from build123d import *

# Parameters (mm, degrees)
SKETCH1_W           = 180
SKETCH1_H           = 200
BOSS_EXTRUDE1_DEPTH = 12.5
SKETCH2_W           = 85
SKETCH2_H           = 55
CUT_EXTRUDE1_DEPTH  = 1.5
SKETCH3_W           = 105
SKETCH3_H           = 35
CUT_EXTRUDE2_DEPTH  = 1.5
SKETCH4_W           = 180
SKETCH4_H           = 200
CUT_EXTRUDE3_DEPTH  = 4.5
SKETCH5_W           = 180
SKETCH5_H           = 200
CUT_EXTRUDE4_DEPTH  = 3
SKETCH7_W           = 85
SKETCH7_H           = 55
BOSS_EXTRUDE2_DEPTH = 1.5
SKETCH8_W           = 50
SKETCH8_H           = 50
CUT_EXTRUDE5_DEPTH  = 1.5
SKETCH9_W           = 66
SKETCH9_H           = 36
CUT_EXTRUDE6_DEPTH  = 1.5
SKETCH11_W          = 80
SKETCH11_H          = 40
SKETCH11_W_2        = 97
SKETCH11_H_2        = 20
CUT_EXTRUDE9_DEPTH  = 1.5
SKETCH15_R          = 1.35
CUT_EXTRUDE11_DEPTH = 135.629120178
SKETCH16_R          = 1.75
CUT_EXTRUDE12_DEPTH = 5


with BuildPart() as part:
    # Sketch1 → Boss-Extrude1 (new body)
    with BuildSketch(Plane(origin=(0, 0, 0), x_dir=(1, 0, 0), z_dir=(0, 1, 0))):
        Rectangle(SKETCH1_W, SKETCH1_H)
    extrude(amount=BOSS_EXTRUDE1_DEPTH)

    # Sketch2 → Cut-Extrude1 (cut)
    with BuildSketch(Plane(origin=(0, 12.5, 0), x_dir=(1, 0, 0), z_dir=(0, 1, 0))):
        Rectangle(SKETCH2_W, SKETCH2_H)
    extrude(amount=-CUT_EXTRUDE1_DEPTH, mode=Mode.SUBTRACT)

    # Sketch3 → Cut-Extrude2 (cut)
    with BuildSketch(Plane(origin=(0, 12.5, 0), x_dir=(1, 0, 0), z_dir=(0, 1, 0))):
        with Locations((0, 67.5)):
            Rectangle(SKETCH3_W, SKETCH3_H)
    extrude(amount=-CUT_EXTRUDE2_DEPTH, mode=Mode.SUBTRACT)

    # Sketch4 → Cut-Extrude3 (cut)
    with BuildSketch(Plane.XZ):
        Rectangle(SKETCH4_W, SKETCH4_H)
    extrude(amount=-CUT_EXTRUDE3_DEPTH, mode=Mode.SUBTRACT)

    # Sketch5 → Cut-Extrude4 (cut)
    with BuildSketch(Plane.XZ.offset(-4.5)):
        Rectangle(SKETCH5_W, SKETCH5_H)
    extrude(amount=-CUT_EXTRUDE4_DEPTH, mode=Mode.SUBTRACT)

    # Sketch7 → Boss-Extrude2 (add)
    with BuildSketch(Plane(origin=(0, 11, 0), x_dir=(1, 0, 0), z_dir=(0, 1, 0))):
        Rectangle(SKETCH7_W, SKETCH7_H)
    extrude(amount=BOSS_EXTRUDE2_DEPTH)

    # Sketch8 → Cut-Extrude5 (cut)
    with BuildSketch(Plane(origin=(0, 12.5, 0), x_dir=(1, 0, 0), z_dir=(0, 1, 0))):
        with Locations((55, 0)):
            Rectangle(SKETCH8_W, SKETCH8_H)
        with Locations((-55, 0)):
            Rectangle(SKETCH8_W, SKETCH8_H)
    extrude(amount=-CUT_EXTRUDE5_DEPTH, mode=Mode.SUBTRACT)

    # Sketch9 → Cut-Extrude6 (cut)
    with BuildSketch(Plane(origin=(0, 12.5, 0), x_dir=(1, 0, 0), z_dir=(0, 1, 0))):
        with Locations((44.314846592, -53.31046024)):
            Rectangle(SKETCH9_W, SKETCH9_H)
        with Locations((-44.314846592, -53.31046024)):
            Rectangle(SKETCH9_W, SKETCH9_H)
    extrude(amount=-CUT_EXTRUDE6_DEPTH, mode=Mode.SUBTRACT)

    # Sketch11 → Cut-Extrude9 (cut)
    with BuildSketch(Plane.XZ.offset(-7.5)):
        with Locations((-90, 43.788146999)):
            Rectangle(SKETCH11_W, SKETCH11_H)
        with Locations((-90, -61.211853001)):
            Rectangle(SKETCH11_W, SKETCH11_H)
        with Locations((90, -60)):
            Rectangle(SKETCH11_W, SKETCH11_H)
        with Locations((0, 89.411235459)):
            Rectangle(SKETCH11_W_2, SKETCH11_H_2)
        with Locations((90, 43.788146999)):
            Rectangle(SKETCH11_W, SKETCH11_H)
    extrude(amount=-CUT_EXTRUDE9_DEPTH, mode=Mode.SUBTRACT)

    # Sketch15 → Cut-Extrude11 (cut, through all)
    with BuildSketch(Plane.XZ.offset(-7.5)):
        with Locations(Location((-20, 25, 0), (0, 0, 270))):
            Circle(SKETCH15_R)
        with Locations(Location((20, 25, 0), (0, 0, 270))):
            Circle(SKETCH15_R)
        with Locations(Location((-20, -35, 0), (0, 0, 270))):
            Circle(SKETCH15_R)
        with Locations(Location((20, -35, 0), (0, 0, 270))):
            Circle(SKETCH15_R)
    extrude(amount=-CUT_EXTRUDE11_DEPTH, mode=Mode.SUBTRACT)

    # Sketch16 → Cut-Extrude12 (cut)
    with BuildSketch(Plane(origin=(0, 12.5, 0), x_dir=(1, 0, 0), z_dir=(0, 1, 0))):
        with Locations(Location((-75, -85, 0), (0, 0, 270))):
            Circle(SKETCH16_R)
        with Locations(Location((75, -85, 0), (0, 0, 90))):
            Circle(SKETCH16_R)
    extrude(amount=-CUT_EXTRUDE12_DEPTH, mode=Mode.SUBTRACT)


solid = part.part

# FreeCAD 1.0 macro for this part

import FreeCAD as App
import Part
import Sketcher

V = App.Vector
Q = App.Units.Quantity

doc = App.newDocument("Part")
body = doc.addObject("PartDesign::Body", "Body")

# Sketch on XZ plane
sketch1 = body.newObject("Sketcher::SketchObject", "Sketch")
sketch1.AttachmentSupport = (doc.getObject("XZ_Plane"), [""])
sketch1.MapMode = "FlatFace"
sketch1.addGeometry(Part.LineSegment(V(-90, -100, 0), V(-90, 100, 0)), False)
sketch1.addGeometry(Part.LineSegment(V(-90, 100, 0), V(90, 100, 0)), False)
sketch1.addGeometry(Part.LineSegment(V(90, 100, 0), V(90, -100, 0)), False)
sketch1.addGeometry(Part.LineSegment(V(90, -100, 0), V(-90, -100, 0)), False)
sketch1.addConstraint(Sketcher.Constraint("Coincident", 0, 2, 1, 1))
sketch1.addConstraint(Sketcher.Constraint("Coincident", 1, 2, 2, 1))
sketch1.addConstraint(Sketcher.Constraint("Coincident", 2, 2, 3, 1))
sketch1.addConstraint(Sketcher.Constraint("Coincident", 3, 2, 0, 1))
sketch1.addConstraint(Sketcher.Constraint("Vertical", 0))
sketch1.addConstraint(Sketcher.Constraint("Horizontal", 1))
sketch1.addConstraint(Sketcher.Constraint("Vertical", 2))
sketch1.addConstraint(Sketcher.Constraint("Horizontal", 3))
sketch1.addConstraint(Sketcher.Constraint("Symmetric", 0, 2, 2, 2, -1, 1))
sketch1.addConstraint(Sketcher.Constraint("DistanceX", 1, 1, 1, 2, Q("180 mm")))
sketch1.addConstraint(Sketcher.Constraint("DistanceY", 0, 1, 0, 2, Q("200 mm")))
pad1 = body.newObject("PartDesign::Pad", "Pad")
pad1.Profile = sketch1
pad1.Length = 12.5
pad1.Reversed = True

# Sketch on XZ plane
sketch2 = body.newObject("Sketcher::SketchObject", "Sketch001")
sketch2.AttachmentSupport = (doc.getObject("XZ_Plane"), [""])
sketch2.MapMode = "FlatFace"
sketch2.AttachmentOffset = App.Placement(V(0, 0, -12.5), App.Rotation())
sketch2.addGeometry(Part.LineSegment(V(-42, -28, 0), V(-42, 28, 0)), False)
sketch2.addGeometry(Part.LineSegment(V(-42, 28, 0), V(42, 28, 0)), False)
sketch2.addGeometry(Part.LineSegment(V(42, 28, 0), V(42, -28, 0)), False)
sketch2.addGeometry(Part.LineSegment(V(42, -28, 0), V(-42, -28, 0)), False)
sketch2.addConstraint(Sketcher.Constraint("Coincident", 0, 2, 1, 1))
sketch2.addConstraint(Sketcher.Constraint("Coincident", 1, 2, 2, 1))
sketch2.addConstraint(Sketcher.Constraint("Coincident", 2, 2, 3, 1))
sketch2.addConstraint(Sketcher.Constraint("Coincident", 3, 2, 0, 1))
sketch2.addConstraint(Sketcher.Constraint("Vertical", 0))
sketch2.addConstraint(Sketcher.Constraint("Horizontal", 1))
sketch2.addConstraint(Sketcher.Constraint("Vertical", 2))
sketch2.addConstraint(Sketcher.Constraint("Horizontal", 3))
sketch2.addConstraint(Sketcher.Constraint("Symmetric", 0, 2, 2, 2, -1, 1))
sketch2.addConstraint(Sketcher.Constraint("DistanceX", 1, 1, 1, 2, Q("85 mm")))
sketch2.addConstraint(Sketcher.Constraint("DistanceY", 0, 1, 0, 2, Q("55 mm")))
pocket1 = body.newObject("PartDesign::Pocket", "Pocket")
pocket1.Profile = sketch2
pocket1.Length = 1.5
pocket1.Reversed = True

# Sketch on XZ plane
sketch3 = body.newObject("Sketcher::SketchObject", "Sketch002")
sketch3.AttachmentSupport = (doc.getObject("XZ_Plane"), [""])
sketch3.MapMode = "FlatFace"
sketch3.AttachmentOffset = App.Placement(V(0, 0, -12.5), App.Rotation())
sketch3.addGeometry(Part.LineSegment(V(-52, -85, 0), V(-52, -50, 0)), False)
sketch3.addGeometry(Part.LineSegment(V(-52, -50, 0), V(52, -50, 0)), False)
sketch3.addGeometry(Part.LineSegment(V(52, -50, 0), V(52, -85, 0)), False)
sketch3.addGeometry(Part.LineSegment(V(52, -85, 0), V(-52, -85, 0)), False)
sketch3.addConstraint(Sketcher.Constraint("Coincident", 0, 2, 1, 1))
sketch3.addConstraint(Sketcher.Constraint("Coincident", 1, 2, 2, 1))
sketch3.addConstraint(Sketcher.Constraint("Coincident", 2, 2, 3, 1))
sketch3.addConstraint(Sketcher.Constraint("Coincident", 3, 2, 0, 1))
sketch3.addConstraint(Sketcher.Constraint("Vertical", 0))
sketch3.addConstraint(Sketcher.Constraint("Horizontal", 1))
sketch3.addConstraint(Sketcher.Constraint("Vertical", 2))
sketch3.addConstraint(Sketcher.Constraint("Horizontal", 3))
sketch3.addConstraint(Sketcher.Constraint("DistanceX", 1, 1, 1, 2, Q("105 mm")))
sketch3.addConstraint(Sketcher.Constraint("DistanceY", 0, 1, 0, 2, Q("35 mm")))
sketch3.addConstraint(Sketcher.Constraint("DistanceY", 0, 2, -1, 1, Q("50 mm")))
sketch3.addConstraint(Sketcher.Constraint("DistanceX", 0, 2, -1, 1, Q("52.5 mm")))
pocket2 = body.newObject("PartDesign::Pocket", "Pocket001")
pocket2.Profile = sketch3
pocket2.Length = 1.5
pocket2.Reversed = True

# Sketch on XZ plane
sketch4 = body.newObject("Sketcher::SketchObject", "Sketch003")
sketch4.AttachmentSupport = (doc.getObject("XZ_Plane"), [""])
sketch4.MapMode = "FlatFace"
sketch4.addGeometry(Part.LineSegment(V(-90, 100, 0), V(-90, -100, 0)), False)
sketch4.addGeometry(Part.LineSegment(V(-90, -100, 0), V(90, -100, 0)), False)
sketch4.addGeometry(Part.LineSegment(V(90, -100, 0), V(90, 100, 0)), False)
sketch4.addGeometry(Part.LineSegment(V(90, 100, 0), V(-90, 100, 0)), False)
sketch4.addConstraint(Sketcher.Constraint("Coincident", 0, 2, 1, 1))
sketch4.addConstraint(Sketcher.Constraint("Coincident", 1, 2, 2, 1))
sketch4.addConstraint(Sketcher.Constraint("Coincident", 2, 2, 3, 1))
sketch4.addConstraint(Sketcher.Constraint("Coincident", 3, 2, 0, 1))
sketch4.addConstraint(Sketcher.Constraint("Vertical", 0))
sketch4.addConstraint(Sketcher.Constraint("Horizontal", 1))
sketch4.addConstraint(Sketcher.Constraint("Vertical", 2))
sketch4.addConstraint(Sketcher.Constraint("Horizontal", 3))
sketch4.addConstraint(Sketcher.Constraint("Symmetric", 0, 2, 2, 2, -1, 1))
sketch4.addConstraint(Sketcher.Constraint("DistanceX", 1, 1, 1, 2, Q("180 mm")))
sketch4.addConstraint(Sketcher.Constraint("DistanceY", 0, 2, 0, 1, Q("200 mm")))
pocket3 = body.newObject("PartDesign::Pocket", "Pocket002")
pocket3.Profile = sketch4
pocket3.Length = 4.5

# Sketch on XZ plane
sketch5 = body.newObject("Sketcher::SketchObject", "Sketch004")
sketch5.AttachmentSupport = (doc.getObject("XZ_Plane"), [""])
sketch5.MapMode = "FlatFace"
sketch5.AttachmentOffset = App.Placement(V(0, 0, -4.5), App.Rotation())
sketch5.addGeometry(Part.LineSegment(V(-90, 100, 0), V(-90, -100, 0)), False)
sketch5.addGeometry(Part.LineSegment(V(-90, -100, 0), V(90, -100, 0)), False)
sketch5.addGeometry(Part.LineSegment(V(90, -100, 0), V(90, 100, 0)), False)
sketch5.addGeometry(Part.LineSegment(V(90, 100, 0), V(-90, 100, 0)), False)
sketch5.addConstraint(Sketcher.Constraint("Coincident", 0, 2, 1, 1))
sketch5.addConstraint(Sketcher.Constraint("Coincident", 1, 2, 2, 1))
sketch5.addConstraint(Sketcher.Constraint("Coincident", 2, 2, 3, 1))
sketch5.addConstraint(Sketcher.Constraint("Coincident", 3, 2, 0, 1))
sketch5.addConstraint(Sketcher.Constraint("Vertical", 0))
sketch5.addConstraint(Sketcher.Constraint("Horizontal", 1))
sketch5.addConstraint(Sketcher.Constraint("Vertical", 2))
sketch5.addConstraint(Sketcher.Constraint("Horizontal", 3))
sketch5.addConstraint(Sketcher.Constraint("Symmetric", 0, 2, 2, 2, -1, 1))
sketch5.addConstraint(Sketcher.Constraint("DistanceX", 1, 1, 1, 2, Q("180 mm")))
sketch5.addConstraint(Sketcher.Constraint("DistanceY", 0, 2, 0, 1, Q("200 mm")))
pocket4 = body.newObject("PartDesign::Pocket", "Pocket003")
pocket4.Profile = sketch5
pocket4.Length = 3

# Sketch on XZ plane
sketch6 = body.newObject("Sketcher::SketchObject", "Sketch005")
sketch6.AttachmentSupport = (doc.getObject("XZ_Plane"), [""])
sketch6.MapMode = "FlatFace"
sketch6.AttachmentOffset = App.Placement(V(0, 0, -11), App.Rotation())
sketch6.addGeometry(Part.LineSegment(V(-42, -28, 0), V(-42, 28, 0)), False)
sketch6.addGeometry(Part.LineSegment(V(-42, 28, 0), V(42, 28, 0)), False)
sketch6.addGeometry(Part.LineSegment(V(42, 28, 0), V(42, -28, 0)), False)
sketch6.addGeometry(Part.LineSegment(V(42, -28, 0), V(-42, -28, 0)), False)
sketch6.addConstraint(Sketcher.Constraint("Coincident", 0, 2, 1, 1))
sketch6.addConstraint(Sketcher.Constraint("Coincident", 1, 2, 2, 1))
sketch6.addConstraint(Sketcher.Constraint("Coincident", 2, 2, 3, 1))
sketch6.addConstraint(Sketcher.Constraint("Coincident", 3, 2, 0, 1))
sketch6.addConstraint(Sketcher.Constraint("Vertical", 0))
sketch6.addConstraint(Sketcher.Constraint("Horizontal", 1))
sketch6.addConstraint(Sketcher.Constraint("Vertical", 2))
sketch6.addConstraint(Sketcher.Constraint("Horizontal", 3))
sketch6.addConstraint(Sketcher.Constraint("Symmetric", 0, 2, 2, 2, -1, 1))
sketch6.addConstraint(Sketcher.Constraint("DistanceX", 1, 1, 1, 2, Q("85 mm")))
sketch6.addConstraint(Sketcher.Constraint("DistanceY", 0, 1, 0, 2, Q("55 mm")))
pad2 = body.newObject("PartDesign::Pad", "Pad001")
pad2.Profile = sketch6
pad2.Length = 1.5
pad2.Reversed = True

# Sketch on XZ plane
sketch7 = body.newObject("Sketcher::SketchObject", "Sketch006")
sketch7.AttachmentSupport = (doc.getObject("XZ_Plane"), [""])
sketch7.MapMode = "FlatFace"
sketch7.AttachmentOffset = App.Placement(V(0, 0, -12.5), App.Rotation())
sketch7.addGeometry(Part.LineSegment(V(30, -25, 0), V(30, 25, 0)), False)
sketch7.addGeometry(Part.LineSegment(V(30, 25, 0), V(80, 25, 0)), False)
sketch7.addGeometry(Part.LineSegment(V(80, 25, 0), V(80, -25, 0)), False)
sketch7.addGeometry(Part.LineSegment(V(80, -25, 0), V(30, -25, 0)), False)
sketch7.addGeometry(Part.LineSegment(V(-80, -25, 0), V(-80, 25, 0)), False)
sketch7.addGeometry(Part.LineSegment(V(-80, 25, 0), V(-30, 25, 0)), False)
sketch7.addGeometry(Part.LineSegment(V(-30, 25, 0), V(-30, -25, 0)), False)
sketch7.addGeometry(Part.LineSegment(V(-30, -25, 0), V(-80, -25, 0)), False)
sketch7.addConstraint(Sketcher.Constraint("Coincident", 0, 2, 1, 1))
sketch7.addConstraint(Sketcher.Constraint("Coincident", 1, 2, 2, 1))
sketch7.addConstraint(Sketcher.Constraint("Coincident", 2, 2, 3, 1))
sketch7.addConstraint(Sketcher.Constraint("Coincident", 3, 2, 0, 1))
sketch7.addConstraint(Sketcher.Constraint("Coincident", 4, 2, 5, 1))
sketch7.addConstraint(Sketcher.Constraint("Coincident", 5, 2, 6, 1))
sketch7.addConstraint(Sketcher.Constraint("Coincident", 6, 2, 7, 1))
sketch7.addConstraint(Sketcher.Constraint("Coincident", 7, 2, 4, 1))
sketch7.addConstraint(Sketcher.Constraint("Vertical", 0))
sketch7.addConstraint(Sketcher.Constraint("Horizontal", 1))
sketch7.addConstraint(Sketcher.Constraint("Vertical", 2))
sketch7.addConstraint(Sketcher.Constraint("Horizontal", 3))
sketch7.addConstraint(Sketcher.Constraint("Vertical", 4))
sketch7.addConstraint(Sketcher.Constraint("Horizontal", 5))
sketch7.addConstraint(Sketcher.Constraint("Vertical", 6))
sketch7.addConstraint(Sketcher.Constraint("Horizontal", 7))
sketch7.addConstraint(Sketcher.Constraint("Symmetric", 2, 2, 4, 2, -1, 1))
sketch7.addConstraint(Sketcher.Constraint("Symmetric", 0, 2, 6, 2, -1, 1))
sketch7.addConstraint(Sketcher.Constraint("Horizontal", 1, 2, 4, 2))
sketch7.addConstraint(Sketcher.Constraint("Equal", 7, 0))
sketch7.addConstraint(Sketcher.Constraint("DistanceX", 1, 1, 1, 2, Q("50 mm")))
sketch7.addConstraint(Sketcher.Constraint("DistanceX", -1, 1, 0, 2, Q("30 mm")))
pocket5 = body.newObject("PartDesign::Pocket", "Pocket004")
pocket5.Profile = sketch7
pocket5.Length = 1.5
pocket5.Reversed = True

# Sketch on XZ plane
sketch8 = body.newObject("Sketcher::SketchObject", "Sketch007")
sketch8.AttachmentSupport = (doc.getObject("XZ_Plane"), [""])
sketch8.MapMode = "FlatFace"
sketch8.AttachmentOffset = App.Placement(V(0, 0, -12.5), App.Rotation())
sketch8.addGeometry(Part.LineSegment(V(11, 35, 0), V(11, 71, 0)), False)
sketch8.addGeometry(Part.LineSegment(V(11, 71, 0), V(77, 71, 0)), False)
sketch8.addGeometry(Part.LineSegment(V(77, 71, 0), V(77, 35, 0)), False)
sketch8.addGeometry(Part.LineSegment(V(77, 35, 0), V(11, 35, 0)), False)
sketch8.addGeometry(Part.LineSegment(V(-77, 35, 0), V(-77, 71, 0)), False)
sketch8.addGeometry(Part.LineSegment(V(-77, 71, 0), V(-11, 71, 0)), False)
sketch8.addGeometry(Part.LineSegment(V(-11, 71, 0), V(-11, 35, 0)), False)
sketch8.addGeometry(Part.LineSegment(V(-11, 35, 0), V(-77, 35, 0)), False)
sketch8.addConstraint(Sketcher.Constraint("Coincident", 0, 2, 1, 1))
sketch8.addConstraint(Sketcher.Constraint("Coincident", 1, 2, 2, 1))
sketch8.addConstraint(Sketcher.Constraint("Coincident", 2, 2, 3, 1))
sketch8.addConstraint(Sketcher.Constraint("Coincident", 3, 2, 0, 1))
sketch8.addConstraint(Sketcher.Constraint("Coincident", 4, 2, 5, 1))
sketch8.addConstraint(Sketcher.Constraint("Coincident", 5, 2, 6, 1))
sketch8.addConstraint(Sketcher.Constraint("Coincident", 6, 2, 7, 1))
sketch8.addConstraint(Sketcher.Constraint("Coincident", 7, 2, 4, 1))
sketch8.addConstraint(Sketcher.Constraint("Vertical", 0))
sketch8.addConstraint(Sketcher.Constraint("Horizontal", 1))
sketch8.addConstraint(Sketcher.Constraint("Vertical", 2))
sketch8.addConstraint(Sketcher.Constraint("Horizontal", 3))
sketch8.addConstraint(Sketcher.Constraint("Vertical", 4))
sketch8.addConstraint(Sketcher.Constraint("Horizontal", 5))
sketch8.addConstraint(Sketcher.Constraint("Vertical", 6))
sketch8.addConstraint(Sketcher.Constraint("Horizontal", 7))
sketch8.addConstraint(Sketcher.Constraint("Symmetric", 1, 2, 4, 2, -2))
sketch8.addConstraint(Sketcher.Constraint("Symmetric", 3, 2, 6, 2, -2))
sketch8.addConstraint(Sketcher.Constraint("DistanceX", 1, 1, 1, 2, Q("66 mm")))
sketch8.addConstraint(Sketcher.Constraint("DistanceY", 0, 1, 0, 2, Q("36 mm")))
sketch8.addConstraint(Sketcher.Constraint("DistanceY", -1, 1, 0, 2, Q("71.31046 mm")))
sketch8.addConstraint(Sketcher.Constraint("DistanceX", -1, 1, 0, 2, Q("11.314847 mm")))
pocket6 = body.newObject("PartDesign::Pocket", "Pocket005")
pocket6.Profile = sketch8
pocket6.Length = 1.5
pocket6.Reversed = True

# Sketch on XZ plane
sketch9 = body.newObject("Sketcher::SketchObject", "Sketch008")
sketch9.AttachmentSupport = (doc.getObject("XZ_Plane"), [""])
sketch9.MapMode = "FlatFace"
sketch9.AttachmentOffset = App.Placement(V(0, 0, -7.5), App.Rotation())
sketch9.addGeometry(Part.LineSegment(V(-130, 64, 0), V(-130, 24, 0)), False)
sketch9.addGeometry(Part.LineSegment(V(-130, 24, 0), V(-50, 24, 0)), False)
sketch9.addGeometry(Part.LineSegment(V(-50, 24, 0), V(-50, 64, 0)), False)
sketch9.addGeometry(Part.LineSegment(V(-50, 64, 0), V(-130, 64, 0)), False)
sketch9.addGeometry(Part.LineSegment(V(-130, -41, 0), V(-130, -81, 0)), False)
sketch9.addGeometry(Part.LineSegment(V(-130, -81, 0), V(-50, -81, 0)), False)
sketch9.addGeometry(Part.LineSegment(V(-50, -81, 0), V(-50, -41, 0)), False)
sketch9.addGeometry(Part.LineSegment(V(-50, -41, 0), V(-130, -41, 0)), False)
sketch9.addGeometry(Part.LineSegment(V(50, -40, 0), V(50, -80, 0)), False)
sketch9.addGeometry(Part.LineSegment(V(50, -80, 0), V(130, -80, 0)), False)
sketch9.addGeometry(Part.LineSegment(V(130, -80, 0), V(130, -40, 0)), False)
sketch9.addGeometry(Part.LineSegment(V(130, -40, 0), V(50, -40, 0)), False)
sketch9.addGeometry(Part.LineSegment(V(-48, 99, 0), V(-48, 79, 0)), False)
sketch9.addGeometry(Part.LineSegment(V(-48, 79, 0), V(48, 79, 0)), False)
sketch9.addGeometry(Part.LineSegment(V(48, 79, 0), V(48, 99, 0)), False)
sketch9.addGeometry(Part.LineSegment(V(48, 99, 0), V(-48, 99, 0)), False)
sketch9.addGeometry(Part.LineSegment(V(50, 64, 0), V(50, 24, 0)), False)
sketch9.addGeometry(Part.LineSegment(V(50, 24, 0), V(130, 24, 0)), False)
sketch9.addGeometry(Part.LineSegment(V(130, 24, 0), V(130, 64, 0)), False)
sketch9.addGeometry(Part.LineSegment(V(130, 64, 0), V(50, 64, 0)), False)
sketch9.addConstraint(Sketcher.Constraint("Coincident", 0, 2, 1, 1))
sketch9.addConstraint(Sketcher.Constraint("Coincident", 1, 2, 2, 1))
sketch9.addConstraint(Sketcher.Constraint("Coincident", 2, 2, 3, 1))
sketch9.addConstraint(Sketcher.Constraint("Coincident", 3, 2, 0, 1))
sketch9.addConstraint(Sketcher.Constraint("Coincident", 4, 2, 5, 1))
sketch9.addConstraint(Sketcher.Constraint("Coincident", 5, 2, 6, 1))
sketch9.addConstraint(Sketcher.Constraint("Coincident", 6, 2, 7, 1))
sketch9.addConstraint(Sketcher.Constraint("Coincident", 7, 2, 4, 1))
sketch9.addConstraint(Sketcher.Constraint("Coincident", 8, 2, 9, 1))
sketch9.addConstraint(Sketcher.Constraint("Coincident", 9, 2, 10, 1))
sketch9.addConstraint(Sketcher.Constraint("Coincident", 10, 2, 11, 1))
sketch9.addConstraint(Sketcher.Constraint("Coincident", 11, 2, 8, 1))
sketch9.addConstraint(Sketcher.Constraint("Coincident", 12, 2, 13, 1))
sketch9.addConstraint(Sketcher.Constraint("Coincident", 13, 2, 14, 1))
sketch9.addConstraint(Sketcher.Constraint("Coincident", 14, 2, 15, 1))
sketch9.addConstraint(Sketcher.Constraint("Coincident", 15, 2, 12, 1))
sketch9.addConstraint(Sketcher.Constraint("Coincident", 16, 2, 17, 1))
sketch9.addConstraint(Sketcher.Constraint("Coincident", 17, 2, 18, 1))
sketch9.addConstraint(Sketcher.Constraint("Coincident", 18, 2, 19, 1))
sketch9.addConstraint(Sketcher.Constraint("Coincident", 19, 2, 16, 1))
sketch9.addConstraint(Sketcher.Constraint("Vertical", 0))
sketch9.addConstraint(Sketcher.Constraint("Horizontal", 1))
sketch9.addConstraint(Sketcher.Constraint("Vertical", 2))
sketch9.addConstraint(Sketcher.Constraint("Horizontal", 3))
sketch9.addConstraint(Sketcher.Constraint("Vertical", 4))
sketch9.addConstraint(Sketcher.Constraint("Horizontal", 5))
sketch9.addConstraint(Sketcher.Constraint("Vertical", 6))
sketch9.addConstraint(Sketcher.Constraint("Horizontal", 7))
sketch9.addConstraint(Sketcher.Constraint("Vertical", 8))
sketch9.addConstraint(Sketcher.Constraint("Horizontal", 9))
sketch9.addConstraint(Sketcher.Constraint("Vertical", 10))
sketch9.addConstraint(Sketcher.Constraint("Horizontal", 11))
sketch9.addConstraint(Sketcher.Constraint("Vertical", 12))
sketch9.addConstraint(Sketcher.Constraint("Horizontal", 13))
sketch9.addConstraint(Sketcher.Constraint("Vertical", 14))
sketch9.addConstraint(Sketcher.Constraint("Horizontal", 15))
sketch9.addConstraint(Sketcher.Constraint("Vertical", 16))
sketch9.addConstraint(Sketcher.Constraint("Horizontal", 17))
sketch9.addConstraint(Sketcher.Constraint("Vertical", 18))
sketch9.addConstraint(Sketcher.Constraint("Horizontal", 19))
sketch9.addConstraint(Sketcher.Constraint("Symmetric", 1, 2, 16, 2, -2))
sketch9.addConstraint(Sketcher.Constraint("Symmetric", 3, 2, 18, 2, -2))
sketch9.addConstraint(Sketcher.Constraint("Vertical", 3, 2, 4, 2))
sketch9.addConstraint(Sketcher.Constraint("Vertical", 2, 2, 5, 2))
sketch9.addConstraint(Sketcher.Constraint("Vertical", 11, 2, 16, 2))
sketch9.addConstraint(Sketcher.Constraint("Vertical", 10, 2, 17, 2))
sketch9.addConstraint(Sketcher.Constraint("Equal", 2, 4))
sketch9.addConstraint(Sketcher.Constraint("Equal", 6, 8))
sketch9.addConstraint(Sketcher.Constraint("DistanceX", 1, 1, 1, 2, Q("80 mm")))
sketch9.addConstraint(Sketcher.Constraint("DistanceX", 13, 1, 13, 2, Q("97 mm")))
sketch9.addConstraint(Sketcher.Constraint("DistanceY", 0, 2, 0, 1, Q("40 mm")))
sketch9.addConstraint(Sketcher.Constraint("DistanceY", 12, 2, 12, 1, Q("20 mm")))
sketch9.addConstraint(Sketcher.Constraint("DistanceX", 0, 2, -1, 1, Q("130 mm")))
sketch9.addConstraint(Sketcher.Constraint("DistanceY", 8, 2, -1, 1, Q("80 mm")))
sketch9.addConstraint(Sketcher.Constraint("DistanceY", 4, 2, 0, 2, Q("105 mm")))
sketch9.addConstraint(Sketcher.Constraint("DistanceX", 12, 2, -1, 1, Q("48.5 mm")))
sketch9.addConstraint(Sketcher.Constraint("DistanceY", 2, 2, 12, 2, Q("15.623088 mm")))
sketch9.addConstraint(Sketcher.Constraint("DistanceY", -1, 1, 0, 2, Q("23.788147 mm")))
pocket7 = body.newObject("PartDesign::Pocket", "Pocket006")
pocket7.Profile = sketch9
pocket7.Length = 1.5

# Sketch on XZ plane
sketch10 = body.newObject("Sketcher::SketchObject", "Sketch009")
sketch10.AttachmentSupport = (doc.getObject("XZ_Plane"), [""])
sketch10.MapMode = "FlatFace"
sketch10.AttachmentOffset = App.Placement(V(0, 0, -7.5), App.Rotation())
sketch10.addGeometry(Part.Circle(V(-20, 25, 0), V(0, 0, 1), 1.4), False)
sketch10.addGeometry(Part.Circle(V(20, 25, 0), V(0, 0, 1), 1.4), False)
sketch10.addGeometry(Part.Circle(V(-20, -35, 0), V(0, 0, 1), 1.4), False)
sketch10.addGeometry(Part.Circle(V(20, -35, 0), V(0, 0, 1), 1.4), False)
sketch10.addConstraint(Sketcher.Constraint("Equal", 0, 1))
sketch10.addConstraint(Sketcher.Constraint("Equal", 1, 2))
sketch10.addConstraint(Sketcher.Constraint("Equal", 2, 3))
sketch10.addConstraint(Sketcher.Constraint("Symmetric", 0, 3, 1, 3, -2))
sketch10.addConstraint(Sketcher.Constraint("Symmetric", 2, 3, 3, 3, -2))
sketch10.addConstraint(Sketcher.Constraint("Vertical", 0, 3, 2, 3))
sketch10.addConstraint(Sketcher.Constraint("Diameter", 0, Q("2.7 mm")))
sketch10.addConstraint(Sketcher.Constraint("DistanceX", 0, 3, -1, 1, Q("20 mm")))
sketch10.addConstraint(Sketcher.Constraint("DistanceY", -1, 1, 0, 3, Q("25 mm")))
sketch10.addConstraint(Sketcher.Constraint("DistanceY", 2, 3, -1, 1, Q("35 mm")))
pocket8 = body.newObject("PartDesign::Pocket", "Pocket007")
pocket8.Profile = sketch10
pocket8.Type = "ThroughAll"

# Sketch on XZ plane
sketch11 = body.newObject("Sketcher::SketchObject", "Sketch010")
sketch11.AttachmentSupport = (doc.getObject("XZ_Plane"), [""])
sketch11.MapMode = "FlatFace"
sketch11.AttachmentOffset = App.Placement(V(0, 0, -12.5), App.Rotation())
sketch11.addGeometry(Part.Circle(V(-75, 85, 0), V(0, 0, 1), 1.8), False)
sketch11.addGeometry(Part.Circle(V(75, 85, 0), V(0, 0, 1), 1.8), False)
sketch11.addConstraint(Sketcher.Constraint("Equal", 0, 1))
sketch11.addConstraint(Sketcher.Constraint("Symmetric", 0, 3, 1, 3, -2))
sketch11.addConstraint(Sketcher.Constraint("Diameter", 0, Q("3.5 mm")))
sketch11.addConstraint(Sketcher.Constraint("DistanceX", 0, 3, -1, 1, Q("75 mm")))
sketch11.addConstraint(Sketcher.Constraint("DistanceY", -1, 1, 0, 3, Q("85 mm")))
pocket9 = body.newObject("PartDesign::Pocket", "Pocket008")
pocket9.Profile = sketch11
pocket9.Length = 5
pocket9.Reversed = True

doc.recompute()
